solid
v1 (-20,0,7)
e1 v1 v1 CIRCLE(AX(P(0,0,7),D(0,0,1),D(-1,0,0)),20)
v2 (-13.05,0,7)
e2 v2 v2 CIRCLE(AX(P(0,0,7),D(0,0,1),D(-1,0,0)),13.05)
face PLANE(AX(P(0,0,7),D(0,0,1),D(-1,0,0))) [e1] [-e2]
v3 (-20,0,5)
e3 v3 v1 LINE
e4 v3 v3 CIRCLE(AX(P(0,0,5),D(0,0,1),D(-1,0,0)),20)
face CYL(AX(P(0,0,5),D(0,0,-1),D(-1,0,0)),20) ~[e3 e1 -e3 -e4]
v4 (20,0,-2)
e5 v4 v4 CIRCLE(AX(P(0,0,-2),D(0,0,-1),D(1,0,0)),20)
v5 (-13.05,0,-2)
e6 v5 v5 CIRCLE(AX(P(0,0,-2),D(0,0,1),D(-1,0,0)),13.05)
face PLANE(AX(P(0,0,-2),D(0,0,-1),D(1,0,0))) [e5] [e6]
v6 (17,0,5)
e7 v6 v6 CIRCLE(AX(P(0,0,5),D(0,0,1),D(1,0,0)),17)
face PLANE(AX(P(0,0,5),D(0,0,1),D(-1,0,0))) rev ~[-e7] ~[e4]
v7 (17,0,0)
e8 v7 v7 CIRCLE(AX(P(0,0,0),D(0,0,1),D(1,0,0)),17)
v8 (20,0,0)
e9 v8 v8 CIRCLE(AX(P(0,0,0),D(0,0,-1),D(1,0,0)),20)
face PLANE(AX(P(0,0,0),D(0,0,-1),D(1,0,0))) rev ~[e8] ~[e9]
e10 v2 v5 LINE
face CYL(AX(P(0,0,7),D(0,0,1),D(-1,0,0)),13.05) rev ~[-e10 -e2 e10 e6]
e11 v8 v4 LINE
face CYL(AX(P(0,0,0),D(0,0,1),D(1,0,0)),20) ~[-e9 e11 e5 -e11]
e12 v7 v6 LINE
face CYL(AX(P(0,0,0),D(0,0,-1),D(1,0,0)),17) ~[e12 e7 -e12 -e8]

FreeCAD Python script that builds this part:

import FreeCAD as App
import Part
import Sketcher

V = App.Vector
Q = App.Units.Quantity

doc = App.newDocument("Part")
body = doc.addObject("PartDesign::Body", "Body")

# Sketch on XY plane
sketch1 = body.newObject("Sketcher::SketchObject", "Sketch")
sketch1.AttachmentSupport = (doc.getObject("XY_Plane"), [""])
sketch1.MapMode = "FlatFace"
sketch1.addGeometry(Part.Circle(V(0, 0, 0), V(0, 0, 1), 17), False)
sketch1.addConstraint(Sketcher.Constraint("Coincident", 0, 3, -1, 1))
sketch1.addConstraint(Sketcher.Constraint("Diameter", 0, Q("34 mm")))
pad1 = body.newObject("PartDesign::Pad", "Pad")
pad1.Profile = sketch1
pad1.Length = 5

# Sketch on XY plane
sketch2 = body.newObject("Sketcher::SketchObject", "Sketch001")
sketch2.AttachmentSupport = (doc.getObject("XY_Plane"), [""])
sketch2.MapMode = "FlatFace"
sketch2.AttachmentOffset = App.Placement(V(0, 0, 5), App.Rotation())
sketch2.addGeometry(Part.Circle(V(0, 0, 0), V(0, 0, 1), 20), False)
sketch2.addConstraint(Sketcher.Constraint("Coincident", 0, 3, -1, 1))
sketch2.addConstraint(Sketcher.Constraint("Diameter", 0, Q("40 mm")))
pad2 = body.newObject("PartDesign::Pad", "Pad001")
pad2.Profile = sketch2
pad2.Length = 2

# Sketch on XY plane
sketch3 = body.newObject("Sketcher::SketchObject", "Sketch002")
sketch3.AttachmentSupport = (doc.getObject("XY_Plane"), [""])
sketch3.MapMode = "FlatFace"
sketch3.addGeometry(Part.Circle(V(0, 0, 0), V(0, 0, 1), 20), False)
sketch3.addConstraint(Sketcher.Constraint("Coincident", 0, 3, -1, 1))
sketch3.addConstraint(Sketcher.Constraint("Diameter", 0, Q("40 mm")))
pad3 = body.newObject("PartDesign::Pad", "Pad002")
pad3.Profile = sketch3
pad3.Length = 2
pad3.Reversed = True

# Sketch on XY plane
sketch4 = body.newObject("Sketcher::SketchObject", "Sketch003")
sketch4.AttachmentSupport = (doc.getObject("XY_Plane"), [""])
sketch4.MapMode = "FlatFace"
sketch4.AttachmentOffset = App.Placement(V(0, 0, 7), App.Rotation())
sketch4.addGeometry(Part.Circle(V(0, 0, 0), V(0, 0, 1), 13.05), False)
sketch4.addConstraint(Sketcher.Constraint("Coincident", 0, 3, -1, 1))
sketch4.addConstraint(Sketcher.Constraint("Diameter", 0, Q("26.1 mm")))
pocket1 = body.newObject("PartDesign::Pocket", "Pocket")
pocket1.Profile = sketch4
pocket1.Length = 23

doc.recompute()
